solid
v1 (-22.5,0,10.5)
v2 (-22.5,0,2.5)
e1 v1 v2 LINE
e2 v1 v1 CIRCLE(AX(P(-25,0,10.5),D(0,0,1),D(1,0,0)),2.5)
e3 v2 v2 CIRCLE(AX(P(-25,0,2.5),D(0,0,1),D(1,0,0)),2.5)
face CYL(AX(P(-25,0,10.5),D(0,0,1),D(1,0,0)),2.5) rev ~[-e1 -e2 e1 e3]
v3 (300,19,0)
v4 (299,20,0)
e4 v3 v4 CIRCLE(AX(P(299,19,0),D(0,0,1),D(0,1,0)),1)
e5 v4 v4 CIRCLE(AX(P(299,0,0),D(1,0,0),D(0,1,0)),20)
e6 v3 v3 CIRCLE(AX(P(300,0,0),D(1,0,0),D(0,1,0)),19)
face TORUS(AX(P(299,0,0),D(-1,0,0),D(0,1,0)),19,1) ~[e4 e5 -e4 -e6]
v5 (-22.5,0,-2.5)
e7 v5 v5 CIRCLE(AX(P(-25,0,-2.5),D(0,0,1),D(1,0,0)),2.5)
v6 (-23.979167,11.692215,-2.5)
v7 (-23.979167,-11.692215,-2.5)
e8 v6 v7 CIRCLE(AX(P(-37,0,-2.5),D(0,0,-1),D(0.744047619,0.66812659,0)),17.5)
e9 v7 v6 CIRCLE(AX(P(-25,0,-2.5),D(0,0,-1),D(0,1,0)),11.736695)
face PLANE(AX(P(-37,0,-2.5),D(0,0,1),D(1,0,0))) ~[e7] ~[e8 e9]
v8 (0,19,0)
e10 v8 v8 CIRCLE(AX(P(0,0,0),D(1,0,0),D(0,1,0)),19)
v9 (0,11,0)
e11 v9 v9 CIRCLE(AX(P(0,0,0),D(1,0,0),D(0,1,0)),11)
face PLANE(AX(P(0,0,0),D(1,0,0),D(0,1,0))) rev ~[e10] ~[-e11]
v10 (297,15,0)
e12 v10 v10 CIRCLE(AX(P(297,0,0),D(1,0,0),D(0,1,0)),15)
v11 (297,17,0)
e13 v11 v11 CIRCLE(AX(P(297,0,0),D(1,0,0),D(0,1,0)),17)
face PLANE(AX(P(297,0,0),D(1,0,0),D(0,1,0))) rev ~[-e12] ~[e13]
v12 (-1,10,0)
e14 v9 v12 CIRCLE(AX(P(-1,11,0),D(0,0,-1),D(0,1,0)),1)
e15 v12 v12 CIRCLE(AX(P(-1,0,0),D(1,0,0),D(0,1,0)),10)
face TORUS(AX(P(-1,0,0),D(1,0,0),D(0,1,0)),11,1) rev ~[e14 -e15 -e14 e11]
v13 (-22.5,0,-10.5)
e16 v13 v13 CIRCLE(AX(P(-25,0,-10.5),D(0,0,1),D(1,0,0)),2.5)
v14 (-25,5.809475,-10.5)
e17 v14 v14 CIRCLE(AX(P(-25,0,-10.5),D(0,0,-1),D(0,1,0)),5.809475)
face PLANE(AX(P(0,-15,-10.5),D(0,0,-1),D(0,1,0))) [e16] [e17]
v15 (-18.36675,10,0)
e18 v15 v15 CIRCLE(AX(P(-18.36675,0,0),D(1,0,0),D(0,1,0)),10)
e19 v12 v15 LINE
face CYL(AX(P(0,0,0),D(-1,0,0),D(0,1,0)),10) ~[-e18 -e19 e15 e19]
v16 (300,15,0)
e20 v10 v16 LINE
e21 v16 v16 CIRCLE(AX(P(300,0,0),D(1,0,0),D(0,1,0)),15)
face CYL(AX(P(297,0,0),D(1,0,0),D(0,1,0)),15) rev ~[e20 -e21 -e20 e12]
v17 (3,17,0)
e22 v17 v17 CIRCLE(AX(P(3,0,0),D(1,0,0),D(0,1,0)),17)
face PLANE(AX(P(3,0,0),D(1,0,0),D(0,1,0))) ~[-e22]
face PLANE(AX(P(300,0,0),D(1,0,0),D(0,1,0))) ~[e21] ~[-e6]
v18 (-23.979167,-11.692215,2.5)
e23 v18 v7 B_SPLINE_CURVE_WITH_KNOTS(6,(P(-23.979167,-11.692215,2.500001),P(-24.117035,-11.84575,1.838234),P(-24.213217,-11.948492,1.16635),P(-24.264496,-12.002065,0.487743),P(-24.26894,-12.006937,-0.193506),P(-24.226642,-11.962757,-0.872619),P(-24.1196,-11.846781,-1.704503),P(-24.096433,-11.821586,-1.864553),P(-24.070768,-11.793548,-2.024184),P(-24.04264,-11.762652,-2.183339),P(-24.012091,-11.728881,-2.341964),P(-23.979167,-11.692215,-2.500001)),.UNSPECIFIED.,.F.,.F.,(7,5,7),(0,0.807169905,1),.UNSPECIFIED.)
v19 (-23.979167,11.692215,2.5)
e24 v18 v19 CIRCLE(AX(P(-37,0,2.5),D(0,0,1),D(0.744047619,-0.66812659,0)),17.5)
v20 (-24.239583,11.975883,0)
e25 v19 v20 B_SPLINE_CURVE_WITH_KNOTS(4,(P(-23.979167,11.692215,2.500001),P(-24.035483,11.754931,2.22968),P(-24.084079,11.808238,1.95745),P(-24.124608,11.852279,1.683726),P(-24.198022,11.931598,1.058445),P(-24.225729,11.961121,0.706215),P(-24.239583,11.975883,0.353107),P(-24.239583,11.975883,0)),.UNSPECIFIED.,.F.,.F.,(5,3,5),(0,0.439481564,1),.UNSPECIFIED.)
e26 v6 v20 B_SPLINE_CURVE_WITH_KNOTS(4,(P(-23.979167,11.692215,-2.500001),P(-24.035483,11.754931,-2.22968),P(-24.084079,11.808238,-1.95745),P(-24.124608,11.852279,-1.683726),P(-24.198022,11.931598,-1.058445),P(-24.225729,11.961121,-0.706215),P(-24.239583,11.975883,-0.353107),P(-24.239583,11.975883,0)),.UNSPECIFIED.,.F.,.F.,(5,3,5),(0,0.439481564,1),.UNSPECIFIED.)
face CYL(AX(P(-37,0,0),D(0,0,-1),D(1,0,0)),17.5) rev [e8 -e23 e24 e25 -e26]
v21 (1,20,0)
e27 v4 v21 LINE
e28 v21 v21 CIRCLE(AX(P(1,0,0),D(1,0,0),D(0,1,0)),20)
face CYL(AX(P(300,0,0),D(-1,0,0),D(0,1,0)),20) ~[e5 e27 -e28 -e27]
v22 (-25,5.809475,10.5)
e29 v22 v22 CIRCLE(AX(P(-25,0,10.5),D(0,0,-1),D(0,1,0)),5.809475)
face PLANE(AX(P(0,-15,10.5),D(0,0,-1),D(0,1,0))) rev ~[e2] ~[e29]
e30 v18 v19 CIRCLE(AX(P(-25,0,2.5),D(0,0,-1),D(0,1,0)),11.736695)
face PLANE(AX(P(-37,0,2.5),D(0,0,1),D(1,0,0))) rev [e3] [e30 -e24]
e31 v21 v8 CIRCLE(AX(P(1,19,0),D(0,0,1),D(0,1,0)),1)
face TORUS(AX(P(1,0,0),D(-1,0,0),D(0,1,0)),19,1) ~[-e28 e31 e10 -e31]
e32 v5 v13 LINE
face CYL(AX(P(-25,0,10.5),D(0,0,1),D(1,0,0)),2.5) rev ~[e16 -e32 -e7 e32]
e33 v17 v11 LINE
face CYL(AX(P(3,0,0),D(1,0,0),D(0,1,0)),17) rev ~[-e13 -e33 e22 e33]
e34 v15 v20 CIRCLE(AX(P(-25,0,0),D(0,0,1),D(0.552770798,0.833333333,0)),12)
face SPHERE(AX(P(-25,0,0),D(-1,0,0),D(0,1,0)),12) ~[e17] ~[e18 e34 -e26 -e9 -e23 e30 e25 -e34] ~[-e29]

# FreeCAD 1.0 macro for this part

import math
import FreeCAD as App
import Part
import Sketcher


def edges_at(feature, points):
    """Names of the edges that pass closest to the given points."""
    edges = feature.Shape.Edges
    near = lambda p: min(range(len(edges)), key=lambda i: edges[i].distToShape(Part.Vertex(*p))[0])
    return sorted({f"Edge{near(p) + 1}" for p in points})


def add_polygon(sketch, points):
    """Adds a closed chain of lines whose ends are joined by coincident constraints."""
    first, n = sketch.GeometryCount, len(points)
    for a, b in zip(points, points[1:] + points[:1]):
        sketch.addGeometry(Part.LineSegment(App.Vector(*a, 0), App.Vector(*b, 0)), False)
    for i in range(n):
        sketch.addConstraint(Sketcher.Constraint("Coincident", first + i, 2, first + (i + 1) % n, 1))

doc = App.newDocument("Part")
params = doc.addObject("Spreadsheet::Sheet", "Params")
for row, (alias, value) in enumerate([
    ("sketch1_radius", "12 mm"),
    ("sketch1_width", "3 mm"),
    ("sketch1_width2", "300 mm"),
    ("sketch1_width3", "40 mm"),
    ("sketch1_width4", "294 mm"),
    ("revolution_angle", "360 deg"),
    ("sketch2_width", "30 mm"),
    ("sketch2_height", "21 mm"),
    ("pocket1_length", "40 mm"),
    ("sketch3_height", "5 mm"),
    ("sketch3_width", "17.5 mm"),
    ("groove_angle", "360 deg"),
    ("fillet_radius", "1 mm"),
    ("sketch4_diameter", "5 mm"),
], start=1):
    params.set(f"A{row}", alias)
    params.set(f"B{row}", "=" + value)
    params.setAlias(f"B{row}", alias)

body = doc.addObject("PartDesign::Body", "Body")

# Sketch on XY plane
sketch1 = doc.addObject("Sketcher::SketchObject", "Sketch")
body.addObject(sketch1)
sketch1.AttachmentSupport = (doc.XY_Plane, [""])
sketch1.MapMode = "FlatFace"
sketch1.addGeometry([
    Part.LineSegment(App.Vector(297, 15, 0), App.Vector(300, 15, 0)),  # 0
    Part.LineSegment(App.Vector(300, 15, 0), App.Vector(300, 20, 0)),  # 1
    Part.LineSegment(App.Vector(300, 20, 0), App.Vector(0, 20, 0)),  # 2
    Part.LineSegment(App.Vector(0, 20, 0), App.Vector(0, 10, 0)),  # 3
    Part.LineSegment(App.Vector(0, 10, 0), App.Vector(-18.36675, 10, 0)),  # 4
    Part.ArcOfCircle(Part.Circle(App.Vector(-25, 0, 0), App.Vector(0, 0, 1), 12), math.radians(56.44269), math.radians(180)),  # 5
    Part.LineSegment(App.Vector(-37, 0, 0), App.Vector(3, 0, 0)),  # 6
    Part.LineSegment(App.Vector(3, 0, 0), App.Vector(3, 17, 0)),  # 7
    Part.LineSegment(App.Vector(3, 17, 0), App.Vector(297, 17, 0)),  # 8
    Part.LineSegment(App.Vector(297, 17, 0), App.Vector(297, 15, 0)),  # 9
], False)
sketch1.addConstraint([
    Sketcher.Constraint("Coincident", 0, 2, 1, 1),
    Sketcher.Constraint("Coincident", 1, 2, 2, 1),
    Sketcher.Constraint("Coincident", 2, 2, 3, 1),
    Sketcher.Constraint("Coincident", 3, 2, 4, 1),
    Sketcher.Constraint("Coincident", 4, 2, 5, 1),
    Sketcher.Constraint("Coincident", 5, 2, 6, 1),
    Sketcher.Constraint("Coincident", 6, 2, 7, 1),
    Sketcher.Constraint("Coincident", 7, 2, 8, 1),
    Sketcher.Constraint("Coincident", 8, 2, 9, 1),
    Sketcher.Constraint("Coincident", 9, 2, 0, 1),
    Sketcher.Constraint("Horizontal", 0),
    Sketcher.Constraint("Vertical", 1),
    Sketcher.Constraint("Horizontal", 2),
    Sketcher.Constraint("Vertical", 3),
    Sketcher.Constraint("Horizontal", 4),
    Sketcher.Constraint("Horizontal", 6),
    Sketcher.Constraint("Vertical", 7),
    Sketcher.Constraint("Horizontal", 8),
    Sketcher.Constraint("Vertical", 9),
    Sketcher.Constraint("PointOnObject", 5, 3, -1),
    Sketcher.Constraint("PointOnObject", 2, 2, -2),
    Sketcher.Constraint("PointOnObject", 5, 2, -1),
    Sketcher.Constraint("Radius", 5, 12.0),
    Sketcher.Constraint("DistanceX", 0, 1, 0, 2, 3.0),
    Sketcher.Constraint("DistanceX", 2, 2, 2, 1, 300.0),
    Sketcher.Constraint("DistanceX", 6, 1, 6, 2, 40.0),
    Sketcher.Constraint("DistanceX", 8, 1, 8, 2, 294.0),
    Sketcher.Constraint("DistanceY", 1, 1, 1, 2, 5.0),
    Sketcher.Constraint("DistanceY", 3, 2, 3, 1, 10.0),
    Sketcher.Constraint("DistanceY", 7, 1, 7, 2, 17.0),
    Sketcher.Constraint("DistanceY", 9, 2, 9, 1, 2.0),
])
sketch1.setExpression("Constraints[22]", "Params.sketch1_radius")
sketch1.setExpression("Constraints[23]", "Params.sketch1_width")
sketch1.setExpression("Constraints[24]", "Params.sketch1_width2")
sketch1.setExpression("Constraints[25]", "Params.sketch1_width3")
sketch1.setExpression("Constraints[26]", "Params.sketch1_width4")
revolution = doc.addObject("PartDesign::Revolution", "Revolution")
body.addObject(revolution)
revolution.Profile = sketch1
revolution.ReferenceAxis = (sketch1, ["H_Axis"])
revolution.setExpression("Angle", "Params.revolution_angle")

# Sketch on YZ plane
sketch2 = doc.addObject("Sketcher::SketchObject", "Sketch001")
body.addObject(sketch2)
sketch2.AttachmentSupport = (doc.YZ_Plane, [""])
sketch2.MapMode = "FlatFace"
add_polygon(sketch2, [(55.171, -55.171), (-55.171, -55.171), (-55.171, 55.171), (55.171, 55.171)])  # lines 0-3
add_polygon(sketch2, [(-15, 10.5), (-15, -10.5), (15, -10.5), (15, 10.5)])  # lines 4-7
sketch2.addConstraint([
    Sketcher.Constraint("Horizontal", 0),
    Sketcher.Constraint("Vertical", 1),
    Sketcher.Constraint("Horizontal", 2),
    Sketcher.Constraint("Vertical", 3),
    Sketcher.Constraint("Vertical", 4),
    Sketcher.Constraint("Horizontal", 5),
    Sketcher.Constraint("Vertical", 6),
    Sketcher.Constraint("Horizontal", 7),
    Sketcher.Constraint("Symmetric", 0, 2, 2, 2, -1, 1),
    Sketcher.Constraint("Symmetric", 4, 2, 6, 2, -1, 1),
    Sketcher.Constraint("Equal", 2, 1),
    Sketcher.Constraint("DistanceX", 5, 1, 5, 2, 30.0),
    Sketcher.Constraint("DistanceY", 4, 2, 4, 1, 21.0),
    Sketcher.Constraint("DistanceX", 0, 2, 0, 1, 110.342),
])
sketch2.setExpression("Constraints[19]", "Params.sketch2_width")
sketch2.setExpression("Constraints[20]", "Params.sketch2_height")
pocket1 = doc.addObject("PartDesign::Pocket", "Pocket")
body.addObject(pocket1)
pocket1.Profile = sketch2
pocket1.setExpression("Length", "Params.pocket1_length")

# Sketch on XZ plane
sketch3 = doc.addObject("Sketcher::SketchObject", "Sketch002")
body.addObject(sketch3)
sketch3.AttachmentSupport = (doc.XZ_Plane, [""])
sketch3.MapMode = "FlatFace"
add_polygon(sketch3, [(-37, -2.5), (-37, 2.5), (-19.5, 2.5), (-19.5, -2.5)])  # lines 0-3
sketch3.addGeometry(Part.LineSegment(App.Vector(-37, -2.5, 0), App.Vector(-37, 2.5, 0)), True)  # axis
sketch3.addConstraint([
    Sketcher.Constraint("Vertical", 0),
    Sketcher.Constraint("Horizontal", 1),
    Sketcher.Constraint("Vertical", 2),
    Sketcher.Constraint("Horizontal", 3),
    Sketcher.Constraint("Vertical", 4),
    Sketcher.Constraint("Coincident", 4, 1, 3, 2),
    Sketcher.Constraint("Horizontal", 1, 2, 4, 2),
    Sketcher.Constraint("DistanceY", 0, 1, 0, 2, 5.0),
    Sketcher.Constraint("DistanceX", 1, 1, 1, 2, 17.5),
    Sketcher.Constraint("DistanceX", 0, 2, -1, 1, 37.0),
    Sketcher.Constraint("DistanceY", -1, 1, 0, 2, 2.5),
])
sketch3.setExpression("Constraints[11]", "Params.sketch3_height")
sketch3.setExpression("Constraints[12]", "Params.sketch3_width")
groove = doc.addObject("PartDesign::Groove", "Groove")
body.addObject(groove)
groove.Profile = sketch3
groove.ReferenceAxis = (sketch3, ["Axis0"])
groove.setExpression("Angle", "Params.groove_angle")
doc.recompute()

fillet = doc.addObject("PartDesign::Fillet", "Fillet")
body.addObject(fillet)
fillet.Base = (groove, edges_at(groove, [(300, -20, 0), (0, -10, 0), (0, -20, 0)]))
fillet.setExpression("Radius", "Params.fillet_radius")

# Sketch on XY plane
sketch4 = doc.addObject("Sketcher::SketchObject", "Sketch003")
body.addObject(sketch4)
sketch4.AttachmentSupport = (doc.XY_Plane, [""])
sketch4.MapMode = "FlatFace"
sketch4.AttachmentOffset = App.Placement(App.Vector(0, 0, 10.5), App.Rotation())
sketch4.addGeometry(Part.Circle(App.Vector(-25, 0, 0), App.Vector(0, 0, 1), 2.5), False)
sketch4.addConstraint([
    Sketcher.Constraint("PointOnObject", 0, 3, -1),
    Sketcher.Constraint("Diameter", 0, 5.0),
    Sketcher.Constraint("DistanceX", 0, 3, -1, 1, 25.0),
])
sketch4.setExpression("Constraints[1]", "Params.sketch4_diameter")
pocket2 = doc.addObject("PartDesign::Pocket", "Pocket001")
body.addObject(pocket2)
pocket2.Profile = sketch4
pocket2.Type = "ThroughAll"
pocket2.Midplane = True

doc.recompute()
